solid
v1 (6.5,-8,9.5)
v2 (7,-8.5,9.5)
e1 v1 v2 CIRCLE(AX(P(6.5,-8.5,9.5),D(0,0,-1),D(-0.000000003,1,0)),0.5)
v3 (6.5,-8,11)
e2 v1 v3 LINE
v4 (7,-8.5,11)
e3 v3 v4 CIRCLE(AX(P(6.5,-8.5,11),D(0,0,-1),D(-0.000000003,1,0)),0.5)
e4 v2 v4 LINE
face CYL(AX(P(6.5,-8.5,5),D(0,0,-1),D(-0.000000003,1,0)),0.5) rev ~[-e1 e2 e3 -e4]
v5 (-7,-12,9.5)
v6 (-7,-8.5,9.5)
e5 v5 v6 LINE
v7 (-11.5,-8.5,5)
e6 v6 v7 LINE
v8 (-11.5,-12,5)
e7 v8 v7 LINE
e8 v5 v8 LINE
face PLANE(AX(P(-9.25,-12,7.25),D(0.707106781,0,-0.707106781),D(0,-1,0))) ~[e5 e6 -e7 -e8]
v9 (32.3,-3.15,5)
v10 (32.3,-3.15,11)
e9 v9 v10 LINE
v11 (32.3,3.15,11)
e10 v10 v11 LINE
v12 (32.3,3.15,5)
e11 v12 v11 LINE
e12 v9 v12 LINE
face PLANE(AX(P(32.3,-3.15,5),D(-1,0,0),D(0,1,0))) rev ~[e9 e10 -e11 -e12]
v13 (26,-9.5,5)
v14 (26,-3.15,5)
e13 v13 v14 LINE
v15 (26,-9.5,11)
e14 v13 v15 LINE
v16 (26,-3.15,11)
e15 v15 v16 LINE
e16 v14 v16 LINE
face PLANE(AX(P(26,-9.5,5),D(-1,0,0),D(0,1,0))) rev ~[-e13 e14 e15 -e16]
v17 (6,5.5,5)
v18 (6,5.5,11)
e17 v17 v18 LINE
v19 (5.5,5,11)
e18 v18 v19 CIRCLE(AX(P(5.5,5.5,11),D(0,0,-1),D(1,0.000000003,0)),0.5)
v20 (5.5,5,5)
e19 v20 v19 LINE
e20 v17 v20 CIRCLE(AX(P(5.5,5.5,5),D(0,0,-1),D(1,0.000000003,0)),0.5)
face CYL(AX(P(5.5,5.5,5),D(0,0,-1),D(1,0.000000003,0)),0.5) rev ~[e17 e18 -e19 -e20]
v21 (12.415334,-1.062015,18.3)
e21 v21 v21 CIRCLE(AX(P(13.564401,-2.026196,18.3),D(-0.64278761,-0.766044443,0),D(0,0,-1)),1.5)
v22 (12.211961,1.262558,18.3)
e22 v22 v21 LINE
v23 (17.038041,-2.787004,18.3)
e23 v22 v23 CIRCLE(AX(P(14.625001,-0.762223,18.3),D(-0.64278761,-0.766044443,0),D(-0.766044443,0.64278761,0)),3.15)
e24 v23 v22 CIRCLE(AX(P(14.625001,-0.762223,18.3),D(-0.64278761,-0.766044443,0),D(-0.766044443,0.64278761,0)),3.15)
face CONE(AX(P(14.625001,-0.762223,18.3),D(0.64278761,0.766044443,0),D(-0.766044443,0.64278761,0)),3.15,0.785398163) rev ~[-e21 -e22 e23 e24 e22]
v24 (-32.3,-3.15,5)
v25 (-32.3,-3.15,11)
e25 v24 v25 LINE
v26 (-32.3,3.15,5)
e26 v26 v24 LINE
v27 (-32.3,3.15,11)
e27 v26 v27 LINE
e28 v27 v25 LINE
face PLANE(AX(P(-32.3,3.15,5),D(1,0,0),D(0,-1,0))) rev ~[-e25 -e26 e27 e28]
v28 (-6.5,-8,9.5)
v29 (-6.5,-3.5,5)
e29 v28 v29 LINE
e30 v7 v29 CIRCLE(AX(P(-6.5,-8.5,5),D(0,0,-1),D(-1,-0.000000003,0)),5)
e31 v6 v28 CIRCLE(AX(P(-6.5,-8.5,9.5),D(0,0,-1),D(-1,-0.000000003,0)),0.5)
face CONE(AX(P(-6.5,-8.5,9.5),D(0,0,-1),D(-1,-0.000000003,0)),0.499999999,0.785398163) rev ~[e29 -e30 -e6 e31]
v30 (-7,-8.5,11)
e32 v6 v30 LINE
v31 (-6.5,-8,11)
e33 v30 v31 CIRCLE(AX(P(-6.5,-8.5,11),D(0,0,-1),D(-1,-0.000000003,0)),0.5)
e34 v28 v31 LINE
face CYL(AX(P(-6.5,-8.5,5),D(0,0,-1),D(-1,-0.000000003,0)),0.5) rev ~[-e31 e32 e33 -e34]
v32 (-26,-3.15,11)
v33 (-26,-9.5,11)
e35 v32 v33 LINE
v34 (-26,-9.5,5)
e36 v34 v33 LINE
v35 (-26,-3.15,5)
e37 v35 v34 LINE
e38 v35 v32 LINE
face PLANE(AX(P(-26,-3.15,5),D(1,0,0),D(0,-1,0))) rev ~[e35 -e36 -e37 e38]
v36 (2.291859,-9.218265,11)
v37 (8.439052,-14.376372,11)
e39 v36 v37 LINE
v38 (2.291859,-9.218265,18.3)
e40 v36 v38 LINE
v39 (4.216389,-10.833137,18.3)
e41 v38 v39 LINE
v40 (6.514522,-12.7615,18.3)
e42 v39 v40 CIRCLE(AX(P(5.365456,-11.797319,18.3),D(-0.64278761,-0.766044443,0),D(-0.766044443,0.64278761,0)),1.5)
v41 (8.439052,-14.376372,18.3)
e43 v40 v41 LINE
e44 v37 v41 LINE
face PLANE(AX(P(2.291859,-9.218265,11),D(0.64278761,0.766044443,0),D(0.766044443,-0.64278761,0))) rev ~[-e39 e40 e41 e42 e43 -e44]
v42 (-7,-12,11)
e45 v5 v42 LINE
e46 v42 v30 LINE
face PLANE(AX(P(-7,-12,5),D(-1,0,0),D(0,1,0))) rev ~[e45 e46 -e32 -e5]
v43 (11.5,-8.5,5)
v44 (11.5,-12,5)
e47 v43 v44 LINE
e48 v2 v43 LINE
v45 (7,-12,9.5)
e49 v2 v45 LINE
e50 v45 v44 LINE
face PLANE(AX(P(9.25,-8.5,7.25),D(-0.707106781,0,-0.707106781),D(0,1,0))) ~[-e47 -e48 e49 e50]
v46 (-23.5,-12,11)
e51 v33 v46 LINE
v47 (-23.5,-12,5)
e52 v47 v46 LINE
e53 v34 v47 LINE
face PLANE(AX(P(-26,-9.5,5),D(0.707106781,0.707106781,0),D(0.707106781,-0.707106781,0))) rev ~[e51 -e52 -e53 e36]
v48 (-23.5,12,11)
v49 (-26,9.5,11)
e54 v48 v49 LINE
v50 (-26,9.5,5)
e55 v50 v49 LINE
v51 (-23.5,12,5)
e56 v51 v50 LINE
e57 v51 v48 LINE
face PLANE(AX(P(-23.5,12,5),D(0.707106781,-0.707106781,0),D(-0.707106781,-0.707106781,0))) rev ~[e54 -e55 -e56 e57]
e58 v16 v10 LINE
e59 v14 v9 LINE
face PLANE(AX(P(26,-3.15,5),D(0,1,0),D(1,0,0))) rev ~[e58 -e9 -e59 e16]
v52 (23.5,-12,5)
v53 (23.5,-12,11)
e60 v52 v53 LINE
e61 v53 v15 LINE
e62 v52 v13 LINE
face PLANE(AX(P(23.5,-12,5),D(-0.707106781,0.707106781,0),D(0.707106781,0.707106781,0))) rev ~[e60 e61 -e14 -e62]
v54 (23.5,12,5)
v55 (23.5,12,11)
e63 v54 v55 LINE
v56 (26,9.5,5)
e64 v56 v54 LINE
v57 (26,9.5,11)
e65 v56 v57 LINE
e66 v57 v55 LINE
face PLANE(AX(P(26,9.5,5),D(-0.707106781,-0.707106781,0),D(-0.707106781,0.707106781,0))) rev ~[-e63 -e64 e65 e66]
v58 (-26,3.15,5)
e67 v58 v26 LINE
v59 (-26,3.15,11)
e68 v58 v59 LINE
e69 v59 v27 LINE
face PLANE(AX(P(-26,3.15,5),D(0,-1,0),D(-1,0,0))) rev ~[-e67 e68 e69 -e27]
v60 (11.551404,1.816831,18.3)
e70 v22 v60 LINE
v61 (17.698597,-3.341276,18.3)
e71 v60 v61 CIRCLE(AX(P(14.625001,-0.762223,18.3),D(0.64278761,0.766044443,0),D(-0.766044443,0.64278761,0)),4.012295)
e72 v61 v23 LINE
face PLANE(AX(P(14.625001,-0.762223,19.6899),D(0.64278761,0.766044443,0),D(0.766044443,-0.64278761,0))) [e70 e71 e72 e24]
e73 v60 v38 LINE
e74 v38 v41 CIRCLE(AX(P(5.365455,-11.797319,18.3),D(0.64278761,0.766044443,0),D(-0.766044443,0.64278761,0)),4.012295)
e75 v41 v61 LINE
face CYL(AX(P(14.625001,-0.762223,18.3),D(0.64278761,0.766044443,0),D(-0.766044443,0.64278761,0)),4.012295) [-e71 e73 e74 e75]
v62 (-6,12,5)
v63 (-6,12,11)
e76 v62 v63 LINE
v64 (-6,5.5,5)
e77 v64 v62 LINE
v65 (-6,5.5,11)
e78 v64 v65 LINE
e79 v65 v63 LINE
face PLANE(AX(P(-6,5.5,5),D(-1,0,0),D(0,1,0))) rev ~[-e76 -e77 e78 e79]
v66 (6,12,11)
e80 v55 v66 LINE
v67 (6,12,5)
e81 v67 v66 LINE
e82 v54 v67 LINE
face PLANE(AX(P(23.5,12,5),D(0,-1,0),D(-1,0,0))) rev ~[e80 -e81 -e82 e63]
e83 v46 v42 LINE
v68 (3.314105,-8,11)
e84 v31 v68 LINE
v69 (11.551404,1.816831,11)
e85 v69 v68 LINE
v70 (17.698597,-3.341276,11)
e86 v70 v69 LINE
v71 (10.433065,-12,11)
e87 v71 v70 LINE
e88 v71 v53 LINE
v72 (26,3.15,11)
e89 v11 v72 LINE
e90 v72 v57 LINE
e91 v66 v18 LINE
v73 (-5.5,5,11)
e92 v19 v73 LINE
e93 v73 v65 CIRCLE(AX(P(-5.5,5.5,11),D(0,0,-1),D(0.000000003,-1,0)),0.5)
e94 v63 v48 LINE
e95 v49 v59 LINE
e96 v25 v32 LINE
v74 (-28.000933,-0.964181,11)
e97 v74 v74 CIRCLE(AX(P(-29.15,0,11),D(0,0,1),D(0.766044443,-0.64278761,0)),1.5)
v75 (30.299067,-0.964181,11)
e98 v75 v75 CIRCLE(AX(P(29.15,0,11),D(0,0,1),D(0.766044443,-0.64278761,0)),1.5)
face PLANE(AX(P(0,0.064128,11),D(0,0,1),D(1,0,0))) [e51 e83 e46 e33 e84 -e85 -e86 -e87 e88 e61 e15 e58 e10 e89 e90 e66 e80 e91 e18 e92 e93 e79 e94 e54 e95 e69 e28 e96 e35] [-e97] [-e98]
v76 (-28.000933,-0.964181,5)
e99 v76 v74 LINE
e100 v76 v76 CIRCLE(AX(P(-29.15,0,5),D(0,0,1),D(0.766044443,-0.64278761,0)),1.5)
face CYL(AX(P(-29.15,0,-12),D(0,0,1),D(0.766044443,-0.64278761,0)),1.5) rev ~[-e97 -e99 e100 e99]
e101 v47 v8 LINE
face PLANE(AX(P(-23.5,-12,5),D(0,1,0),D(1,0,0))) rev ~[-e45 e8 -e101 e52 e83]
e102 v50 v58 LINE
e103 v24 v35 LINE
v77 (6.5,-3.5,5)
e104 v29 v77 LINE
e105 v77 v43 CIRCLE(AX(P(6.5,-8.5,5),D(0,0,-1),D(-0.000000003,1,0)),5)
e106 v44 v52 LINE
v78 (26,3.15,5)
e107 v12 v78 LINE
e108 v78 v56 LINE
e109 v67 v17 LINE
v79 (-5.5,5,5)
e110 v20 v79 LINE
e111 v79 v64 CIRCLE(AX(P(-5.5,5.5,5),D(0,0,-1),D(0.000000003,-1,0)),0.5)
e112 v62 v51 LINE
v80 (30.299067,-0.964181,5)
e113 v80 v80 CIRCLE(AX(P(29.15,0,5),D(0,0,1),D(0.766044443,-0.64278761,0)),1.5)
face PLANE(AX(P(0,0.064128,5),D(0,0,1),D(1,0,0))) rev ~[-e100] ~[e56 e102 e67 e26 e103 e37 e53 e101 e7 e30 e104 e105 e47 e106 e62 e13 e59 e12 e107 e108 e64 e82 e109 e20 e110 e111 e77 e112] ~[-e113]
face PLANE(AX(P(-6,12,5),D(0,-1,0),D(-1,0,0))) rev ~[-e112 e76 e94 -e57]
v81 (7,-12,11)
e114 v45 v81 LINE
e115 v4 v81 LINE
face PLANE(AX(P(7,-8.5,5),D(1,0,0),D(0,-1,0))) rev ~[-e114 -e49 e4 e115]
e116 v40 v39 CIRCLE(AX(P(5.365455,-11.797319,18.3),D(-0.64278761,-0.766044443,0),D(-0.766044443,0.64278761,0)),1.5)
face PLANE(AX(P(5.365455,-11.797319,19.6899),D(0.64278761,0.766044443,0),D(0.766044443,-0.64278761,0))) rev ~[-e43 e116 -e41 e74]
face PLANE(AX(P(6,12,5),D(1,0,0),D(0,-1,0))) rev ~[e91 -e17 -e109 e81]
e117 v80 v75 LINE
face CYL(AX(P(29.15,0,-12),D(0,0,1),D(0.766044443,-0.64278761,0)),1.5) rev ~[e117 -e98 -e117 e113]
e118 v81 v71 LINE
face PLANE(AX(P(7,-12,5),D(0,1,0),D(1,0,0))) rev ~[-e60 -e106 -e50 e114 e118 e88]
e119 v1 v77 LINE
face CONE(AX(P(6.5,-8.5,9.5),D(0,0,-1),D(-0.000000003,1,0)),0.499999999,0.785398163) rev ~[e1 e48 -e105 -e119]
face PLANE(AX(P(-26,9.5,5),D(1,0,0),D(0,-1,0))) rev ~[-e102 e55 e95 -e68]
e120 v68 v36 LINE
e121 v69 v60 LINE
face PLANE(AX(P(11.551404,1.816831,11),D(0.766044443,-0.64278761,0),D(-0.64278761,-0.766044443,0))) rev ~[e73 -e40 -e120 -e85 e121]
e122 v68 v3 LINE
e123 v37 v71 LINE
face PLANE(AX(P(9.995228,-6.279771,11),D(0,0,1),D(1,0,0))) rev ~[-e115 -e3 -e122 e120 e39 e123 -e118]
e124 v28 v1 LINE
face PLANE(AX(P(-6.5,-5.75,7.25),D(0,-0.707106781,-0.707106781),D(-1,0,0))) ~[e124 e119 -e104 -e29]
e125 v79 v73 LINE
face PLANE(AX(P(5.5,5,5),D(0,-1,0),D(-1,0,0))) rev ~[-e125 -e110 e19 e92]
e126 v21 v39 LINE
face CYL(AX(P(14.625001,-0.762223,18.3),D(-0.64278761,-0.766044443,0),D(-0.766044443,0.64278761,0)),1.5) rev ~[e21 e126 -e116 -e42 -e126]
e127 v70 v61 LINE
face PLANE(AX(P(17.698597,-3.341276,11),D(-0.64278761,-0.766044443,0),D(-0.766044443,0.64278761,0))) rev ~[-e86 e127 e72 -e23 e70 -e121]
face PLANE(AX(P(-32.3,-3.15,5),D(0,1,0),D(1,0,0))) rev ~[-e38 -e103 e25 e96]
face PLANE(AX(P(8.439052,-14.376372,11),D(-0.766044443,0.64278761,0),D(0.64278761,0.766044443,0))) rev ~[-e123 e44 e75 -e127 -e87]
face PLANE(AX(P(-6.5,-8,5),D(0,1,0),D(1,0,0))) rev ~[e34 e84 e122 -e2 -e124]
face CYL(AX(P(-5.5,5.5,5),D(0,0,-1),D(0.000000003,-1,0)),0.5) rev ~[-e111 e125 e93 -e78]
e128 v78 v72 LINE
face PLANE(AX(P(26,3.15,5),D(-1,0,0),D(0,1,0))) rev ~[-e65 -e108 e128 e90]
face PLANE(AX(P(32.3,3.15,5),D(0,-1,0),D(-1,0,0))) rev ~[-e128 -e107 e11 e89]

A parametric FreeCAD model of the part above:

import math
import FreeCAD as App
import Part
import Sketcher

V = App.Vector
Q = App.Units.Quantity


def edges_at(feature, points):
    """Names of the edges that pass closest to the given points."""
    edges = feature.Shape.Edges
    near = lambda p: min(range(len(edges)), key=lambda i: edges[i].distToShape(Part.Vertex(*p))[0])
    return sorted({f"Edge{near(p) + 1}" for p in points})

doc = App.newDocument("Part")
body = doc.addObject("PartDesign::Body", "Body")

# Sketch on XY plane
sketch1 = doc.addObject("Sketcher::SketchObject", "Sketch")
body.addObject(sketch1)
sketch1.AttachmentSupport = (doc.XY_Plane, [""])
sketch1.MapMode = "FlatFace"
sketch1.AttachmentOffset = App.Placement(V(0, 0, 5), App.Rotation())
sketch1.addGeometry([
    Part.LineSegment(V(-23.5, -12, 0), V(-7, -12, 0)),  # 0
    Part.LineSegment(V(-7, -12, 0), V(-7, -8.5, 0)),  # 1
    Part.ArcOfCircle(Part.Circle(V(-6.5, -8.5, 0), V(0, 0, 1), 0.5), math.radians(90), math.radians(180)),  # 2
    Part.LineSegment(V(-6.5, -8, 0), V(6.5, -8, 0)),  # 3
    Part.ArcOfCircle(Part.Circle(V(6.5, -8.5, 0), V(0, 0, 1), 0.5), math.radians(0), math.radians(90)),  # 4
    Part.LineSegment(V(7, -8.5, 0), V(7, -12, 0)),  # 5
    Part.LineSegment(V(7, -12, 0), V(23.5, -12, 0)),  # 6
    Part.LineSegment(V(23.5, -12, 0), V(26, -9.5, 0)),  # 7
    Part.LineSegment(V(26, -9.5, 0), V(26, -3.15, 0)),  # 8
    Part.LineSegment(V(26, -3.15, 0), V(32.3, -3.15, 0)),  # 9
    Part.LineSegment(V(32.3, -3.15, 0), V(32.3, 3.15, 0)),  # 10
    Part.LineSegment(V(32.3, 3.15, 0), V(26, 3.15, 0)),  # 11
    Part.LineSegment(V(26, 3.15, 0), V(26, 9.5, 0)),  # 12
    Part.LineSegment(V(26, 9.5, 0), V(23.5, 12, 0)),  # 13
    Part.LineSegment(V(23.5, 12, 0), V(6, 12, 0)),  # 14
    Part.LineSegment(V(6, 12, 0), V(6, 5.5, 0)),  # 15
    Part.ArcOfCircle(Part.Circle(V(5.5, 5.5, 0), V(0, 0, 1), 0.5), math.radians(-90), math.radians(0)),  # 16
    Part.LineSegment(V(5.5, 5, 0), V(-5.5, 5, 0)),  # 17
    Part.ArcOfCircle(Part.Circle(V(-5.5, 5.5, 0), V(0, 0, 1), 0.5), math.radians(180), math.radians(270)),  # 18
    Part.LineSegment(V(-6, 5.5, 0), V(-6, 12, 0)),  # 19
    Part.LineSegment(V(-6, 12, 0), V(-23.5, 12, 0)),  # 20
    Part.LineSegment(V(-23.5, 12, 0), V(-26, 9.5, 0)),  # 21
    Part.LineSegment(V(-26, 9.5, 0), V(-26, 3.15, 0)),  # 22
    Part.LineSegment(V(-26, 3.15, 0), V(-32.3, 3.15, 0)),  # 23
    Part.LineSegment(V(-32.3, 3.15, 0), V(-32.3, -3.15, 0)),  # 24
    Part.LineSegment(V(-32.3, -3.15, 0), V(-26, -3.15, 0)),  # 25
    Part.LineSegment(V(-26, -3.15, 0), V(-26, -9.5, 0)),  # 26
    Part.LineSegment(V(-26, -9.5, 0), V(-23.5, -12, 0)),  # 27
], False)
sketch1.addConstraint([
    Sketcher.Constraint("Coincident", 0, 2, 1, 1),
    Sketcher.Constraint("Tangent", 1, 2, 2, 2),
    Sketcher.Constraint("Tangent", 2, 1, 3, 1),
    Sketcher.Constraint("Tangent", 3, 2, 4, 2),
    Sketcher.Constraint("Tangent", 4, 1, 5, 1),
    Sketcher.Constraint("Coincident", 5, 2, 6, 1),
    Sketcher.Constraint("Coincident", 6, 2, 7, 1),
    Sketcher.Constraint("Coincident", 7, 2, 8, 1),
    Sketcher.Constraint("Coincident", 8, 2, 9, 1),
    Sketcher.Constraint("Coincident", 9, 2, 10, 1),
    Sketcher.Constraint("Coincident", 10, 2, 11, 1),
    Sketcher.Constraint("Coincident", 11, 2, 12, 1),
    Sketcher.Constraint("Coincident", 12, 2, 13, 1),
    Sketcher.Constraint("Coincident", 13, 2, 14, 1),
    Sketcher.Constraint("Coincident", 14, 2, 15, 1),
    Sketcher.Constraint("Tangent", 15, 2, 16, 2),
    Sketcher.Constraint("Tangent", 16, 1, 17, 1),
    Sketcher.Constraint("Tangent", 17, 2, 18, 2),
    Sketcher.Constraint("Tangent", 18, 1, 19, 1),
    Sketcher.Constraint("Coincident", 19, 2, 20, 1),
    Sketcher.Constraint("Coincident", 20, 2, 21, 1),
    Sketcher.Constraint("Coincident", 21, 2, 22, 1),
    Sketcher.Constraint("Coincident", 22, 2, 23, 1),
    Sketcher.Constraint("Coincident", 23, 2, 24, 1),
    Sketcher.Constraint("Coincident", 24, 2, 25, 1),
    Sketcher.Constraint("Coincident", 25, 2, 26, 1),
    Sketcher.Constraint("Coincident", 26, 2, 27, 1),
    Sketcher.Constraint("Coincident", 27, 2, 0, 1),
    Sketcher.Constraint("Horizontal", 0),
    Sketcher.Constraint("Vertical", 1),
    Sketcher.Constraint("Horizontal", 3),
    Sketcher.Constraint("Vertical", 5),
    Sketcher.Constraint("Horizontal", 6),
    Sketcher.Constraint("Vertical", 8),
    Sketcher.Constraint("Horizontal", 9),
    Sketcher.Constraint("Vertical", 10),
    Sketcher.Constraint("Horizontal", 11),
    Sketcher.Constraint("Vertical", 12),
    Sketcher.Constraint("Horizontal", 14),
    Sketcher.Constraint("Vertical", 15),
    Sketcher.Constraint("Horizontal", 17),
    Sketcher.Constraint("Vertical", 19),
    Sketcher.Constraint("Horizontal", 20),
    Sketcher.Constraint("Vertical", 22),
    Sketcher.Constraint("Horizontal", 23),
    Sketcher.Constraint("Vertical", 24),
    Sketcher.Constraint("Horizontal", 25),
    Sketcher.Constraint("Vertical", 26),
    Sketcher.Constraint("Equal", 2, 4),
    Sketcher.Constraint("Equal", 4, 16),
    Sketcher.Constraint("Equal", 16, 18),
    Sketcher.Constraint("Symmetric", 6, 2, 20, 2, -1, 1),
    Sketcher.Constraint("Symmetric", 7, 2, 21, 2, -1, 1),
    Sketcher.Constraint("Symmetric", 9, 2, 23, 2, -1, 1),
    Sketcher.Constraint("Symmetric", 11, 2, 25, 2, -1, 1),
    Sketcher.Constraint("Symmetric", 13, 2, 27, 2, -1, 1),
    Sketcher.Constraint("Symmetric", 0, 2, 5, 2, -2),
    Sketcher.Constraint("Symmetric", 12, 2, 21, 2, -2),
    Sketcher.Constraint("Perpendicular", 7, 13),
    Sketcher.Constraint("Perpendicular", 21, 27),
    Sketcher.Constraint("Horizontal", 11, 2, 22, 2),
    Sketcher.Constraint("Vertical", 6, 2, 13, 2),
    Sketcher.Constraint("Equal", 14, 20),
    Sketcher.Constraint("Equal", 25, 10),
    Sketcher.Constraint("Radius", 2, Q("0.5 mm")),
    Sketcher.Constraint("DistanceX", 3, 1, 3, 2, Q("13 mm")),
    Sketcher.Constraint("DistanceX", 17, 2, 17, 1, Q("11 mm")),
    Sketcher.Constraint("DistanceX", 0, 1, 0, 2, Q("16.5 mm")),
    Sketcher.Constraint("DistanceX", 9, 1, 9, 2, Q("6.3 mm")),
    Sketcher.Constraint("DistanceY", 1, 1, 1, 2, Q("3.5 mm")),
    Sketcher.Constraint("DistanceY", 15, 2, 15, 1, Q("6.5 mm")),
    Sketcher.Constraint("DistanceY", 0, 2, -1, 1, Q("12 mm")),
    Sketcher.Constraint("DistanceX", -1, 1, 7, 2, Q("26 mm")),
])
pad1 = doc.addObject("PartDesign::Pad", "Pad")
body.addObject(pad1)
pad1.Profile = sketch1
pad1.Length = 6
doc.recompute()

chamfer = doc.addObject("PartDesign::Chamfer", "Chamfer")
body.addObject(chamfer)
chamfer.Base = (pad1, edges_at(pad1, [
    (7, -10.25, 5),
    (6.854, -8.146, 5),
    (0, -8, 5),
    (-6.854, -8.146, 5),
    (-7, -10.25, 5),
]))
chamfer.Size = 4.5

# Sketch on YZ plane
sketch2 = doc.addObject("Sketcher::SketchObject", "Sketch001")
body.addObject(sketch2)
sketch2.AttachmentSupport = (doc.YZ_Plane, [""])
sketch2.MapMode = "FlatFace"
sketch2.AttachmentOffset = App.Placement(V(0, 0, 26), App.Rotation())
sketch2.addGeometry([
    Part.LineSegment(V(3.15, 11, 0), V(-3.15, 11, 0)),
    Part.LineSegment(V(-3.15, 11, 0), V(-3.15, 5, 0)),
    Part.LineSegment(V(-3.15, 5, 0), V(3.15, 5, 0)),
    Part.LineSegment(V(3.15, 5, 0), V(3.15, 11, 0)),
], False)
sketch2.addConstraint([
    Sketcher.Constraint("Coincident", 0, 2, 1, 1),
    Sketcher.Constraint("Coincident", 1, 2, 2, 1),
    Sketcher.Constraint("Coincident", 2, 2, 3, 1),
    Sketcher.Constraint("Coincident", 3, 2, 0, 1),
    Sketcher.Constraint("Horizontal", 0),
    Sketcher.Constraint("Vertical", 1),
    Sketcher.Constraint("Horizontal", 2),
    Sketcher.Constraint("Vertical", 3),
    Sketcher.Constraint("DistanceY", 1, 2, 1, 1, Q("6 mm")),
    Sketcher.Constraint("DistanceX", 0, 2, 0, 1, Q("6.3 mm")),
    Sketcher.Constraint("DistanceY", -1, 1, 0, 2, Q("11 mm")),
    Sketcher.Constraint("DistanceX", 0, 2, -1, 1, Q("3.15 mm")),
])
pad2 = doc.addObject("PartDesign::Pad", "Pad001")
body.addObject(pad2)
pad2.Profile = sketch2
pad2.Length = 6.3
doc.recompute()

mirrored = doc.addObject("PartDesign::Mirrored", "Mirrored")
body.addObject(mirrored)
mirrored.Originals = [pad2]
mirrored.MirrorPlane = (doc.YZ_Plane, [""])
body.Tip = mirrored

# Sketch on XY plane
sketch3 = doc.addObject("Sketcher::SketchObject", "Sketch002")
body.addObject(sketch3)
sketch3.AttachmentSupport = (doc.XY_Plane, [""])
sketch3.MapMode = "FlatFace"
sketch3.AttachmentOffset = App.Placement(V(0, 0, 11), App.Rotation())
sketch3.addGeometry([
    Part.LineSegment(V(11.551404, 1.816831, 0), V(2.291859, -9.218265, 0)),
    Part.LineSegment(V(2.291859, -9.218265, 0), V(8.439052, -14.376372, 0)),
    Part.LineSegment(V(8.439052, -14.376372, 0), V(17.698597, -3.341276, 0)),
    Part.LineSegment(V(17.698597, -3.341276, 0), V(11.551404, 1.816831, 0)),
], False)
sketch3.addConstraint([
    Sketcher.Constraint("Coincident", 0, 2, 1, 1),
    Sketcher.Constraint("Coincident", 1, 2, 2, 1),
    Sketcher.Constraint("Coincident", 2, 2, 3, 1),
    Sketcher.Constraint("Coincident", 3, 2, 0, 1),
    Sketcher.Constraint("Perpendicular", 0, 1),
    Sketcher.Constraint("Perpendicular", 1, 2),
    Sketcher.Constraint("Perpendicular", 2, 3),
    Sketcher.Constraint("Angle", 0, Q("-130 deg")),
    Sketcher.Constraint("Distance", 1, Q("8.02459 mm")),
    Sketcher.Constraint("DistanceX", -1, 1, 0, 2, Q("2.291859 mm")),
    Sketcher.Constraint("DistanceY", -1, 1, 3, 2, Q("1.816831 mm")),
    Sketcher.Constraint("DistanceY", 0, 2, 2, 2, Q("5.876989 mm")),
])
pad3 = doc.addObject("PartDesign::Pad", "Pad002")
body.addObject(pad3)
pad3.Profile = sketch3
pad3.Length = 7.3

# Sketch on an angled plane
sketch4 = doc.addObject("Sketcher::SketchObject", "Sketch003")
body.addObject(sketch4)
sketch4.Placement = App.Placement(V(5.667377, 6.754116, 0), App.Rotation(V(0.766044443, -0.64278761, 0), V(0, 0, -1), V(0.64278761, 0.766044443, 0), "ZXY"))
sketch4.addGeometry([
    Part.LineSegment(V(15.705643, -18.3, 0), V(7.681053, -18.3, 0)),
    Part.ArcOfCircle(Part.Circle(V(11.693348, -18.3, 0), V(0, 0, 1), 4.012295), math.radians(180), math.radians(360)),
], False)
sketch4.addConstraint([
    Sketcher.Constraint("Coincident", 0, 1, 1, 2),
    Sketcher.Constraint("Coincident", 1, 1, 0, 2),
    Sketcher.Constraint("Horizontal", 0),
    Sketcher.Constraint("Horizontal", 1, 3, 0, 1),
    Sketcher.Constraint("DistanceY", 1, 3, -1, 1, Q("18.3 mm")),
    Sketcher.Constraint("Radius", 1, Q("4.012295 mm")),
    Sketcher.Constraint("DistanceX", -1, 1, 1, 3, Q("11.693348 mm")),
])
pad4 = doc.addObject("PartDesign::Pad", "Pad003")
body.addObject(pad4)
pad4.Profile = sketch4
pad4.Length = 14.405295
pad4.Reversed = True

# Sketch on an angled plane
sketch5 = doc.addObject("Sketcher::SketchObject", "Sketch004")
body.addObject(sketch5)
sketch5.Placement = App.Placement(V(5.667377, 6.754116, 0), App.Rotation(V(0.766044443, -0.64278761, 0), V(0, 0, -1), V(0.64278761, 0.766044443, 0), "ZXY"))
sketch5.addGeometry(Part.Circle(V(11.693348, -18.3, 0), V(0, 0, 1), 1.5), False)
sketch5.addConstraint([
    Sketcher.Constraint("Diameter", 0, Q("3 mm")),
    Sketcher.Constraint("DistanceY", 0, 3, -1, 1, Q("18.3 mm")),
    Sketcher.Constraint("DistanceX", -1, 1, 0, 3, Q("11.693348 mm")),
])
doc.recompute()
hole = doc.addObject("PartDesign::Hole", "Hole")
body.addObject(hole)
hole.Profile = sketch5
hole.ThreadType = "None"
hole.Diameter = 3
hole.DepthType = "ThroughAll"
hole.HoleCutType = "Countersink"
hole.HoleCutDiameter = 6.3
hole.HoleCutCountersinkAngle = 90

# Sketch on XY plane
sketch6 = doc.addObject("Sketcher::SketchObject", "Sketch005")
body.addObject(sketch6)
sketch6.AttachmentSupport = (doc.XY_Plane, [""])
sketch6.MapMode = "FlatFace"
sketch6.AttachmentOffset = App.Placement(V(0, 0, -12), App.Rotation())
sketch6.addGeometry([
    Part.Circle(V(-29.15, 0, 0), V(0, 0, 1), 1.5),
    Part.Circle(V(29.15, 0, 0), V(0, 0, 1), 1.5),
], False)
sketch6.addConstraint([
    Sketcher.Constraint("Equal", 0, 1),
    Sketcher.Constraint("Symmetric", 0, 3, 1, 3, -1, 1),
    Sketcher.Constraint("PointOnObject", 0, 3, -1),
    Sketcher.Constraint("Diameter", 0, Q("3 mm")),
    Sketcher.Constraint("DistanceX", 0, 3, 1, 3, Q("58.3 mm")),
])
doc.recompute()
hole2 = doc.addObject("PartDesign::Hole", "Hole001")
body.addObject(hole2)
hole2.Profile = sketch6
hole2.ThreadType = "None"
hole2.Diameter = 3
hole2.DepthType = "ThroughAll"
hole2.HoleCutType = "Countersink"
hole2.HoleCutDiameter = 6.3
hole2.HoleCutCountersinkAngle = 90
hole2.Reversed = True

doc.recompute()
